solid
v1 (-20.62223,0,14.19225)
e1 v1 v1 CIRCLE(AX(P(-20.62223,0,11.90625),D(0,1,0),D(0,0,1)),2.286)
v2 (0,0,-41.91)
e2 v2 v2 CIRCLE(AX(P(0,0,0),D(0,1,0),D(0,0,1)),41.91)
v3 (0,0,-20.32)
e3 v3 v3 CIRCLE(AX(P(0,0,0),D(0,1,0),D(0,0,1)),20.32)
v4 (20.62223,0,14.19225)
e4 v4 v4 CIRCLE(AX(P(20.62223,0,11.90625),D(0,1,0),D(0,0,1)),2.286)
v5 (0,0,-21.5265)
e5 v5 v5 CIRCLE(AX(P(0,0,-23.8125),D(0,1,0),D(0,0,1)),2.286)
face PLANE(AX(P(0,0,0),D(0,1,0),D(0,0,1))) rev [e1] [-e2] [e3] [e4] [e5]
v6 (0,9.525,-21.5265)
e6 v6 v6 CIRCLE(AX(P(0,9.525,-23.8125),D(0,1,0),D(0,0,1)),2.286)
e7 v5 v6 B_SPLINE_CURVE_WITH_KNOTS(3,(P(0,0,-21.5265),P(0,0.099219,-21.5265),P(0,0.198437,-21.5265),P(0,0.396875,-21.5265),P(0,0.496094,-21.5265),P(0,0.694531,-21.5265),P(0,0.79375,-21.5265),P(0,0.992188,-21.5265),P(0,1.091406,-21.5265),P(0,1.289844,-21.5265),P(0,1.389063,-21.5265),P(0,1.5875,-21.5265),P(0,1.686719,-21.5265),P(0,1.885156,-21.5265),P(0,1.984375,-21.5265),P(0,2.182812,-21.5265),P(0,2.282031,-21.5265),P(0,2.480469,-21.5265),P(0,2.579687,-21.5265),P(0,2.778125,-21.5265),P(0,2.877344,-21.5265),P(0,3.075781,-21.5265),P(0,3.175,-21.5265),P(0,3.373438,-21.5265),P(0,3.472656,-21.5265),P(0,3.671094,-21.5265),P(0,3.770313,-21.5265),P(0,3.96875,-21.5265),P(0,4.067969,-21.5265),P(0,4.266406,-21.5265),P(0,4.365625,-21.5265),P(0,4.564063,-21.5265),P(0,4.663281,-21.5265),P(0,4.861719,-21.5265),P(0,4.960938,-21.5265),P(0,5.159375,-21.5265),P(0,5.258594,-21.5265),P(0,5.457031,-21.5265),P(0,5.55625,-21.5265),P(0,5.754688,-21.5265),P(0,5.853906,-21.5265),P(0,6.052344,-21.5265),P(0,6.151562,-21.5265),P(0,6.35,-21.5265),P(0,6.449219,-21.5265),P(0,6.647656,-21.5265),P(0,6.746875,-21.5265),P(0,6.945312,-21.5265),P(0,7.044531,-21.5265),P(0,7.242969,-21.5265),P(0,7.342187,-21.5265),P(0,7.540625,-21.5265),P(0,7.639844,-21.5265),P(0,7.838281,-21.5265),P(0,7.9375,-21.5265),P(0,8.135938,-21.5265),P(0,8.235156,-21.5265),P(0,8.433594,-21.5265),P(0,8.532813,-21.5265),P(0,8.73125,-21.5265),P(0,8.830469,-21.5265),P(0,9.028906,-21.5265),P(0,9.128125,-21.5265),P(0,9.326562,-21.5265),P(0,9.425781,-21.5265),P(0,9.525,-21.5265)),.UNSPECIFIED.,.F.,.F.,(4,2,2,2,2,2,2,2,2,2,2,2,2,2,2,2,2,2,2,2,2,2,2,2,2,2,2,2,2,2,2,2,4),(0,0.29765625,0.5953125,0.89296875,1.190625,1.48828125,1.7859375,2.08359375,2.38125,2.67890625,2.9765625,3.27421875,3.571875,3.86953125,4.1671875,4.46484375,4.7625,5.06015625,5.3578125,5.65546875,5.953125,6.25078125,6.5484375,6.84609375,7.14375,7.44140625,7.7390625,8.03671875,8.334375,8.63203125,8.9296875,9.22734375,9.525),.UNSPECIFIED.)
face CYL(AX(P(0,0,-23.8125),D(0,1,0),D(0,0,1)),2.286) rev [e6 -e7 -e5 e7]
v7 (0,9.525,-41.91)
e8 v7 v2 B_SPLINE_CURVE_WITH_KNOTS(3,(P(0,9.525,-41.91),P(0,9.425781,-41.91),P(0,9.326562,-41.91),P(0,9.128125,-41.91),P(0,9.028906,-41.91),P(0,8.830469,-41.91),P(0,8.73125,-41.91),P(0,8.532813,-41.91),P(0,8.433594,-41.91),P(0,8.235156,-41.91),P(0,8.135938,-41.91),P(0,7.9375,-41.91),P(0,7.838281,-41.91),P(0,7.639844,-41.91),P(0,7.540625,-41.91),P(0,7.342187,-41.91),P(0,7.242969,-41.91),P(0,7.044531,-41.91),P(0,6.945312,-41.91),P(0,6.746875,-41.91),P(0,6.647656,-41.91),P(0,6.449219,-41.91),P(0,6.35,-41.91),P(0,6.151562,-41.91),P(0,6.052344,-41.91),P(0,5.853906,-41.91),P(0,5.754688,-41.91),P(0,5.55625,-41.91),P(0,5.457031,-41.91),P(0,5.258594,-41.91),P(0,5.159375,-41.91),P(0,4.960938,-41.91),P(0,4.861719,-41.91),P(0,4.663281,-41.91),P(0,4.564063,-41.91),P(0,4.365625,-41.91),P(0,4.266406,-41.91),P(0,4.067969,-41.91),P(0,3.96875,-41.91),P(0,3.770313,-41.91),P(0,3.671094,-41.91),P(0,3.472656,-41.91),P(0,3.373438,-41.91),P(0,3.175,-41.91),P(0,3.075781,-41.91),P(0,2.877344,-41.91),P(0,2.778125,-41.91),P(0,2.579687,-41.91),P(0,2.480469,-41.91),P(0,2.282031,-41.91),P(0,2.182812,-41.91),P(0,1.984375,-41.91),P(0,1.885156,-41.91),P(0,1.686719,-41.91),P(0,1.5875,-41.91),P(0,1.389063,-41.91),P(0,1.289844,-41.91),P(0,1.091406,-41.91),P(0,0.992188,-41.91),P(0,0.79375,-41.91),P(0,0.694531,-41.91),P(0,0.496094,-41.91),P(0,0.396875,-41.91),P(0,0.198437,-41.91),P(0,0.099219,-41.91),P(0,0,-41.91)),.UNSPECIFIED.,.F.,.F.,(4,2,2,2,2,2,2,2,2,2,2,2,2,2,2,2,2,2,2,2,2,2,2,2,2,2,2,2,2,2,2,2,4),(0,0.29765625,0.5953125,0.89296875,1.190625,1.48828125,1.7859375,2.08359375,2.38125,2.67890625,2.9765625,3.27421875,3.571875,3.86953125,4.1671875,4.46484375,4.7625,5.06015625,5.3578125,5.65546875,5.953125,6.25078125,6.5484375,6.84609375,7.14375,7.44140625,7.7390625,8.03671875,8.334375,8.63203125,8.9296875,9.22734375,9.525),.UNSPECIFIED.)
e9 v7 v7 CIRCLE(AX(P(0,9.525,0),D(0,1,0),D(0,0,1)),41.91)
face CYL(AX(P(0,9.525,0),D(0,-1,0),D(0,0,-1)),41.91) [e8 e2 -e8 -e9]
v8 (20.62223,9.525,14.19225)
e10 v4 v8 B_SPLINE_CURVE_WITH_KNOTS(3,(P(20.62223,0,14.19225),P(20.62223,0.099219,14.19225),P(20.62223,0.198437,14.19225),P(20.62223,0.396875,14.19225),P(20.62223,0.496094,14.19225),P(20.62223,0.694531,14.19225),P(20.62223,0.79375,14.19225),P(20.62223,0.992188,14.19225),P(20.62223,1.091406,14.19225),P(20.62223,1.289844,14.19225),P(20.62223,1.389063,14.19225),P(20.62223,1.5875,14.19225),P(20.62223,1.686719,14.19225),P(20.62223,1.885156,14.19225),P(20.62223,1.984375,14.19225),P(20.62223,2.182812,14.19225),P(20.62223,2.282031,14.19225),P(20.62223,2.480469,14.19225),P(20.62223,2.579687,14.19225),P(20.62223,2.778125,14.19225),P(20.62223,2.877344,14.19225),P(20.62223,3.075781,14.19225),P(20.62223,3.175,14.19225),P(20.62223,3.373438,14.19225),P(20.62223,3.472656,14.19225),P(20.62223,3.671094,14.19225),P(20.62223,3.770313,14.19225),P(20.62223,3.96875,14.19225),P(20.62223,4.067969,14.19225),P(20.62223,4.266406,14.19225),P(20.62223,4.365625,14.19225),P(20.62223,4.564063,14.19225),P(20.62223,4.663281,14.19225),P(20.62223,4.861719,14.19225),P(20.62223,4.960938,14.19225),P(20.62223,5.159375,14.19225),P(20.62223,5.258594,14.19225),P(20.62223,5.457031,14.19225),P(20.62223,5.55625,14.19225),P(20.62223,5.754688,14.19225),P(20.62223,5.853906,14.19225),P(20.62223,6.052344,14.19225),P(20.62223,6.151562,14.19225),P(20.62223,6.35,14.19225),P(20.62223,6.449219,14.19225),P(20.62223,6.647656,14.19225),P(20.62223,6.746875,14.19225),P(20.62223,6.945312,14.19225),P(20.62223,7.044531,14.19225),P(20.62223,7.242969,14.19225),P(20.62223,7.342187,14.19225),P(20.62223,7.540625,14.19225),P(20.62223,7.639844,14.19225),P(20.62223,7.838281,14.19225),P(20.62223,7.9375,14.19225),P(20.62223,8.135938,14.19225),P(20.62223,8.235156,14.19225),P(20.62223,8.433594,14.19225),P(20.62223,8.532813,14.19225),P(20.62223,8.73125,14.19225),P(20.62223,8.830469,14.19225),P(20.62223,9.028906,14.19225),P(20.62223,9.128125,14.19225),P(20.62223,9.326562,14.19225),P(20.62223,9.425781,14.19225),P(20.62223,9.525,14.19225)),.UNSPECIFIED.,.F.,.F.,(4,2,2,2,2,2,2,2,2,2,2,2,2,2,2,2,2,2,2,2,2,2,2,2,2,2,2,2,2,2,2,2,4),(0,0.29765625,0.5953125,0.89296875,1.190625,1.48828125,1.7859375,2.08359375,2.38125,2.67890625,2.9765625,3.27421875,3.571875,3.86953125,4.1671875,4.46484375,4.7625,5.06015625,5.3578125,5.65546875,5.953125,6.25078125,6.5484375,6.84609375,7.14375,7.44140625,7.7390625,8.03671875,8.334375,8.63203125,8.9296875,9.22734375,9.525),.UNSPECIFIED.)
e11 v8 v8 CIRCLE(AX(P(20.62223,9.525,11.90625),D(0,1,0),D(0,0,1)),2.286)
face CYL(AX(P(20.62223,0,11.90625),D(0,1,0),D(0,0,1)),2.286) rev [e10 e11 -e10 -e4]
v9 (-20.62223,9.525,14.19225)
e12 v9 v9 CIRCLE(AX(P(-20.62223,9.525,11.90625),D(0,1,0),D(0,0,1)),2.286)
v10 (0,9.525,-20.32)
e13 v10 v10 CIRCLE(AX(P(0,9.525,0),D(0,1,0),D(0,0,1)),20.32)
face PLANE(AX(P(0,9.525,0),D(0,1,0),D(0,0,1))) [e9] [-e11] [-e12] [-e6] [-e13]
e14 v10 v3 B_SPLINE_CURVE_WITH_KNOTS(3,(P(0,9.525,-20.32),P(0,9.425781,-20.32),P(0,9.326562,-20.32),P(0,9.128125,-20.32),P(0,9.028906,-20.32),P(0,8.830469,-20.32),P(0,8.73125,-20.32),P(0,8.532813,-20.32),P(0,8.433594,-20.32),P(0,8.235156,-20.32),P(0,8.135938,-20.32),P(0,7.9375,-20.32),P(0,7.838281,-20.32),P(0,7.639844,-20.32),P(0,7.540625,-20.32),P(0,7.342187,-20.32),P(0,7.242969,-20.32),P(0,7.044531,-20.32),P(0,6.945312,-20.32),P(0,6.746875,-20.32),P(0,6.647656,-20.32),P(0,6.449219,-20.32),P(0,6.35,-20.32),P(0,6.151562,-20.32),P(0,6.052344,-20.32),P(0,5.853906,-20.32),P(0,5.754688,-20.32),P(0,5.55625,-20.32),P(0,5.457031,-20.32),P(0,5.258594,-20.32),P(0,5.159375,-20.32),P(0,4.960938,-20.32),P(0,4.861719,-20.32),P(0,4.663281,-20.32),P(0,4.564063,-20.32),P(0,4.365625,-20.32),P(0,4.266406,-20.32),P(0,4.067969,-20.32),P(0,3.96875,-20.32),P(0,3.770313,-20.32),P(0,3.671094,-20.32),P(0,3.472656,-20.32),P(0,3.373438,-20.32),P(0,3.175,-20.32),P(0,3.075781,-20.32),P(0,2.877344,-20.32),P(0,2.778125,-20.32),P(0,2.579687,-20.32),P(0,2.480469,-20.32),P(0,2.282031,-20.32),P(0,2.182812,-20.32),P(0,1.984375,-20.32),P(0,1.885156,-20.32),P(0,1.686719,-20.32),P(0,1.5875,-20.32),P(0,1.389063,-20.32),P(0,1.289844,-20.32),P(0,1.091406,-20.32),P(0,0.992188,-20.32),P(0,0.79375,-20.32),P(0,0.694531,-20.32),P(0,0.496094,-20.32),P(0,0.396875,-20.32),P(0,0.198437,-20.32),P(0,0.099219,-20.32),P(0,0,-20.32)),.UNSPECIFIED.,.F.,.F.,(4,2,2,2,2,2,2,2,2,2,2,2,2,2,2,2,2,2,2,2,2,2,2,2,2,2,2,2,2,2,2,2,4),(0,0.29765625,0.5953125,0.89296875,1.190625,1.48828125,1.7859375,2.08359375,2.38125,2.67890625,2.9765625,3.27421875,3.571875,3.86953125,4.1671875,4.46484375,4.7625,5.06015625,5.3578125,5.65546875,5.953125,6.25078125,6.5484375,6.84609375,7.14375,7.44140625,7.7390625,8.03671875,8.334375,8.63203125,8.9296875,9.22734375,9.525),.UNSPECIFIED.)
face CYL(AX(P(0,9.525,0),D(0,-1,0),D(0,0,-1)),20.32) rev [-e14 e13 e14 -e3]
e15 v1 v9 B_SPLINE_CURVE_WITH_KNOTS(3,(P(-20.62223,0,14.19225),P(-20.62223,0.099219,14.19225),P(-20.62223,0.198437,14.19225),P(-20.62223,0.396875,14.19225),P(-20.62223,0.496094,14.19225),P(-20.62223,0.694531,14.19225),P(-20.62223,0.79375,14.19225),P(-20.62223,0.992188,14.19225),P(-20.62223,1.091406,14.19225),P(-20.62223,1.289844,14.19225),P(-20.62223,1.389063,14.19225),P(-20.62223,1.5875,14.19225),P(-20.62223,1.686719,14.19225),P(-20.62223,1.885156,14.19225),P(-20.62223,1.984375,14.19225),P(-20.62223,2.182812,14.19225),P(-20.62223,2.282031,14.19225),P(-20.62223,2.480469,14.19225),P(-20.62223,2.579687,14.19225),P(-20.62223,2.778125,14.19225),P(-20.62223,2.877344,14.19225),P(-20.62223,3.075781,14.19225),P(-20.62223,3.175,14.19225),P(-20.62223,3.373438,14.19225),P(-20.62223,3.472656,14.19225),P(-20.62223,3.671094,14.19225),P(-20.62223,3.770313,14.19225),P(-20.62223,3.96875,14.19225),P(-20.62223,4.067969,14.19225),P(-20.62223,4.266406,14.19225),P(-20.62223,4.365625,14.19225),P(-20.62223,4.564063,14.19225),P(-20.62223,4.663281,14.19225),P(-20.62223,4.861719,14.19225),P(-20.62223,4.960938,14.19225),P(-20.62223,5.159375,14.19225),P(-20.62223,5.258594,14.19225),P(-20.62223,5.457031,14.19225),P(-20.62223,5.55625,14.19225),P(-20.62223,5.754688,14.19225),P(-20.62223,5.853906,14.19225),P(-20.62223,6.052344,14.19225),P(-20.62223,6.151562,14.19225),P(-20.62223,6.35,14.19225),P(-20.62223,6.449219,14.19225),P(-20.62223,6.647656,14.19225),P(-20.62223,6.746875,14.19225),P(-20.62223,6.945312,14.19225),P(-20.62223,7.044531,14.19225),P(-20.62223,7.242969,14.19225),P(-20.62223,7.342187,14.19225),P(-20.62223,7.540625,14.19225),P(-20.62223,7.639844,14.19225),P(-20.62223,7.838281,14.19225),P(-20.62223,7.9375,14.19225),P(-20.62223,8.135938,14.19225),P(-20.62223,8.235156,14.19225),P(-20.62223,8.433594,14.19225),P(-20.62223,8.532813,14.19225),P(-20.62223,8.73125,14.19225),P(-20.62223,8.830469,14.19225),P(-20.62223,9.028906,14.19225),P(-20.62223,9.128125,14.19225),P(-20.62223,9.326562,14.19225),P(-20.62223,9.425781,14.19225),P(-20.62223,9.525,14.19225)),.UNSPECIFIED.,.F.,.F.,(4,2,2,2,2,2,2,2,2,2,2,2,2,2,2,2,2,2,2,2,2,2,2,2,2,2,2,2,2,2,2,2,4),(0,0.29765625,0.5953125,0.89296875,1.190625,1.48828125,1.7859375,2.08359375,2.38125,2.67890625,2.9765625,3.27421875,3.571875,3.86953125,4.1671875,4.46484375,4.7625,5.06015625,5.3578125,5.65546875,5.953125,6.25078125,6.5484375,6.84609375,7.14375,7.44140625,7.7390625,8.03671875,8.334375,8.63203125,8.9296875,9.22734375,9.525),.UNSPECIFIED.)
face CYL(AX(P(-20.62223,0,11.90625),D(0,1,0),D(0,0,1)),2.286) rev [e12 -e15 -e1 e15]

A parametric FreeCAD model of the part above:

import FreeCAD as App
import Part
import Sketcher
from FreeCAD import Vector
Q = App.Units.Quantity

doc = App.newDocument("Part")
body = doc.addObject("PartDesign::Body", "Body")

# Sketch on XZ plane
sketch1 = doc.addObject("Sketcher::SketchObject", "Sketch")
body.addObject(sketch1)
sketch1.AttachmentSupport = (doc.XZ_Plane, [""])
sketch1.MapMode = "FlatFace"
sketch1.addGeometry([
    Part.Circle(Vector(0, 0, 0), Vector(0, 0, 1), 41.91),
    Part.Circle(Vector(0, 0, 0), Vector(0, 0, 1), 20.32),
], False)
sketch1.addConstraint([
    Sketcher.Constraint("Coincident", 0, 3, -1, 1),
    Sketcher.Constraint("Coincident", 1, 3, -1, 1),
    Sketcher.Constraint("Diameter", 0, Q("3.3 in")),
    Sketcher.Constraint("Diameter", 1, Q("1.6 in")),
])
pad1 = doc.addObject("PartDesign::Pad", "Pad")
body.addObject(pad1)
pad1.Profile = sketch1
pad1.Length = Q("0.375 in")
pad1.Reversed = True

# Sketch on XZ plane
sketch2 = doc.addObject("Sketcher::SketchObject", "Sketch001")
body.addObject(sketch2)
sketch2.AttachmentSupport = (doc.XZ_Plane, [""])
sketch2.MapMode = "FlatFace"
sketch2.AttachmentOffset = App.Placement(Vector(0, 0, -0.375 * 25.4), App.Rotation())
sketch2.addGeometry([
    Part.Circle(Vector(0, -23.8125, 0), Vector(0, 0, 1), 2.286),
    Part.Circle(Vector(20.62223, 11.90625, 0), Vector(0, 0, 1), 2.286),
    Part.Circle(Vector(-20.62223, 11.90625, 0), Vector(0, 0, 1), 2.286),
], False)
sketch2.addConstraint([
    Sketcher.Constraint("Equal", 0, 1),
    Sketcher.Constraint("Equal", 1, 2),
    Sketcher.Constraint("Symmetric", 1, 3, 2, 3, -2),
    Sketcher.Constraint("PointOnObject", 0, 3, -2),
    Sketcher.Constraint("Diameter", 0, Q("0.18 in")),
    Sketcher.Constraint("DistanceY", 0, 3, -1, 1, Q("0.9375 in")),
    Sketcher.Constraint("DistanceY", -1, 1, 1, 3, Q("0.46875 in")),
    Sketcher.Constraint("DistanceX", -1, 1, 1, 3, 20.62223),
])
pocket1 = doc.addObject("PartDesign::Pocket", "Pocket")
body.addObject(pocket1)
pocket1.Profile = sketch2
pocket1.Type = "ThroughAll"
pocket1.Reversed = True

doc.recompute()
